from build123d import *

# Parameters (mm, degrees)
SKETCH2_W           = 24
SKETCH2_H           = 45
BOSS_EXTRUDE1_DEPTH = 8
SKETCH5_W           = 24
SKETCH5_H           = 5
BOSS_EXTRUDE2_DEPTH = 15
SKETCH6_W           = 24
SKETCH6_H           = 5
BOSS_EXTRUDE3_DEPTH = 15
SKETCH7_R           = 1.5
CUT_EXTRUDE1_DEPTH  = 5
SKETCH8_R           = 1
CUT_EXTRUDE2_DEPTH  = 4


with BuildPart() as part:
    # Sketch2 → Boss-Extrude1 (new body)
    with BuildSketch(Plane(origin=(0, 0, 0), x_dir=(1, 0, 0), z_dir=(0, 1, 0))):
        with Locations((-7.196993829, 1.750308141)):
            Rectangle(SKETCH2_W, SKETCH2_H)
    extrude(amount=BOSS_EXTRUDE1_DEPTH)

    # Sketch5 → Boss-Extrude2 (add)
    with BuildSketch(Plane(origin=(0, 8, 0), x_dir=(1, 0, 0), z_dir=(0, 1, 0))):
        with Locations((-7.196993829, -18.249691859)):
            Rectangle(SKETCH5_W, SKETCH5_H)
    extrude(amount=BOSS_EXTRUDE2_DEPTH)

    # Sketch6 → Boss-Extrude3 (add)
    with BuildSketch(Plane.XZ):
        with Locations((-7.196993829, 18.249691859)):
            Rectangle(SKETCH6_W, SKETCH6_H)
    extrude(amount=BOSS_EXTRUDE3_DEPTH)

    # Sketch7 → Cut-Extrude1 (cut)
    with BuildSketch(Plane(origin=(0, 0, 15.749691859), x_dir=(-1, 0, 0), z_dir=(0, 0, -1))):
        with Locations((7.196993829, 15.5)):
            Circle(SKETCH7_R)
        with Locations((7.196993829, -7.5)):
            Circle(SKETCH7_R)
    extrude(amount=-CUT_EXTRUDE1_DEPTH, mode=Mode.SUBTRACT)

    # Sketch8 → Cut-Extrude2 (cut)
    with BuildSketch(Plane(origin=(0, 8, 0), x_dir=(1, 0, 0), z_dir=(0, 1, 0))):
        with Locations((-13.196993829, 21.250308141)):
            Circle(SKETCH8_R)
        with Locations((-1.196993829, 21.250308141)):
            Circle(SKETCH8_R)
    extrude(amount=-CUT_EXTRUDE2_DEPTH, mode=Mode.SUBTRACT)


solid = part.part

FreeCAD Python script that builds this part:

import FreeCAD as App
import Part
import Sketcher

doc = App.newDocument("Part")
body = doc.addObject("PartDesign::Body", "Body")

sketch1 = body.newObject("Sketcher::SketchObject", "Sketch")
sketch1.AttachmentSupport = (doc.getObject("XZ_Plane"), [""])
sketch1.MapMode = "FlatFace"
sketch1.addGeometry([
    Part.LineSegment(App.Vector(-19.196994, -24.250308, 0), App.Vector(-19.196994, 20.749692, 0)),
    Part.LineSegment(App.Vector(-19.196994, 20.749692, 0), App.Vector(4.803006, 20.749692, 0)),
    Part.LineSegment(App.Vector(4.803006, 20.749692, 0), App.Vector(4.803006, -24.250308, 0)),
    Part.LineSegment(App.Vector(4.803006, -24.250308, 0), App.Vector(-19.196994, -24.250308, 0)),
], False)
sketch1.addConstraint([
    Sketcher.Constraint("Coincident", 0, 2, 1, 1),
    Sketcher.Constraint("Coincident", 1, 2, 2, 1),
    Sketcher.Constraint("Coincident", 2, 2, 3, 1),
    Sketcher.Constraint("Coincident", 3, 2, 0, 1),
    Sketcher.Constraint("Vertical", 0),
    Sketcher.Constraint("Horizontal", 1),
    Sketcher.Constraint("Vertical", 2),
    Sketcher.Constraint("Horizontal", 3),
    Sketcher.Constraint("DistanceX", 1, 1, 1, 2, 24.0),
    Sketcher.Constraint("DistanceY", 0, 1, 0, 2, 45.0),
    Sketcher.Constraint("DistanceY", -1, 1, 0, 2, 20.749692),
    Sketcher.Constraint("DistanceX", 0, 2, -1, 1, 19.196994),
])
pad1 = body.newObject("PartDesign::Pad", "Pad")
pad1.Profile = sketch1
pad1.Length = 8
pad1.Reversed = True

sketch2 = body.newObject("Sketcher::SketchObject", "Sketch001")
sketch2.AttachmentSupport = (doc.getObject("XZ_Plane"), [""])
sketch2.MapMode = "FlatFace"
sketch2.AttachmentOffset = App.Placement(App.Vector(0, 0, -8), App.Rotation())
sketch2.addGeometry([
    Part.LineSegment(App.Vector(-19.196994, 15.749692, 0), App.Vector(-19.196994, 20.749692, 0)),
    Part.LineSegment(App.Vector(-19.196994, 20.749692, 0), App.Vector(4.803006, 20.749692, 0)),
    Part.LineSegment(App.Vector(4.803006, 20.749692, 0), App.Vector(4.803006, 15.749692, 0)),
    Part.LineSegment(App.Vector(4.803006, 15.749692, 0), App.Vector(-19.196994, 15.749692, 0)),
], False)
sketch2.addConstraint([
    Sketcher.Constraint("Coincident", 0, 2, 1, 1),
    Sketcher.Constraint("Coincident", 1, 2, 2, 1),
    Sketcher.Constraint("Coincident", 2, 2, 3, 1),
    Sketcher.Constraint("Coincident", 3, 2, 0, 1),
    Sketcher.Constraint("Vertical", 0),
    Sketcher.Constraint("Horizontal", 1),
    Sketcher.Constraint("Vertical", 2),
    Sketcher.Constraint("Horizontal", 3),
    Sketcher.Constraint("DistanceX", 1, 1, 1, 2, 24.0),
    Sketcher.Constraint("DistanceY", 0, 1, 0, 2, 5.0),
    Sketcher.Constraint("DistanceY", -1, 1, 0, 2, 20.749692),
    Sketcher.Constraint("DistanceX", 0, 2, -1, 1, 19.196994),
])
pad2 = body.newObject("PartDesign::Pad", "Pad001")
pad2.Profile = sketch2
pad2.Length = 15
pad2.Reversed = True

sketch3 = body.newObject("Sketcher::SketchObject", "Sketch002")
sketch3.AttachmentSupport = (doc.getObject("XZ_Plane"), [""])
sketch3.MapMode = "FlatFace"
sketch3.addGeometry([
    Part.LineSegment(App.Vector(-19.196994, 20.749692, 0), App.Vector(-19.196994, 15.749692, 0)),
    Part.LineSegment(App.Vector(-19.196994, 15.749692, 0), App.Vector(4.803006, 15.749692, 0)),
    Part.LineSegment(App.Vector(4.803006, 15.749692, 0), App.Vector(4.803006, 20.749692, 0)),
    Part.LineSegment(App.Vector(4.803006, 20.749692, 0), App.Vector(-19.196994, 20.749692, 0)),
], False)
sketch3.addConstraint([
    Sketcher.Constraint("Coincident", 0, 2, 1, 1),
    Sketcher.Constraint("Coincident", 1, 2, 2, 1),
    Sketcher.Constraint("Coincident", 2, 2, 3, 1),
    Sketcher.Constraint("Coincident", 3, 2, 0, 1),
    Sketcher.Constraint("Vertical", 0),
    Sketcher.Constraint("Horizontal", 1),
    Sketcher.Constraint("Vertical", 2),
    Sketcher.Constraint("Horizontal", 3),
    Sketcher.Constraint("DistanceX", 1, 1, 1, 2, 24.0),
    Sketcher.Constraint("DistanceY", 0, 2, 0, 1, 5.0),
    Sketcher.Constraint("DistanceY", -1, 1, 0, 2, 15.749692),
    Sketcher.Constraint("DistanceX", 0, 2, -1, 1, 19.196994),
])
pad3 = body.newObject("PartDesign::Pad", "Pad002")
pad3.Profile = sketch3
pad3.Length = 15

sketch4 = body.newObject("Sketcher::SketchObject", "Sketch003")
sketch4.AttachmentSupport = (doc.getObject("XY_Plane"), [""])
sketch4.MapMode = "FlatFace"
sketch4.AttachmentOffset = App.Placement(App.Vector(0, 0, 15.749692), App.Rotation())
sketch4.addGeometry([
    Part.Circle(App.Vector(-7.196994, 15.5, 0), App.Vector(0, 0, 1), 1.5),
    Part.Circle(App.Vector(-7.196994, -7.5, 0), App.Vector(0, 0, 1), 1.5),
], False)
sketch4.addConstraint([
    Sketcher.Constraint("Equal", 0, 1),
    Sketcher.Constraint("Vertical", 0, 3, 1, 3),
    Sketcher.Constraint("Diameter", 0, 3.0),
    Sketcher.Constraint("DistanceY", 1, 3, 0, 3, 23.0),
    Sketcher.Constraint("DistanceY", -1, 1, 0, 3, 15.5),
    Sketcher.Constraint("DistanceX", 0, 3, -1, 1, 7.196994),
])
pocket1 = body.newObject("PartDesign::Pocket", "Pocket")
pocket1.Profile = sketch4
pocket1.Length = 5
pocket1.Reversed = True

sketch5 = body.newObject("Sketcher::SketchObject", "Sketch004")
sketch5.AttachmentSupport = (doc.getObject("XZ_Plane"), [""])
sketch5.MapMode = "FlatFace"
sketch5.AttachmentOffset = App.Placement(App.Vector(0, 0, -8), App.Rotation())
sketch5.addGeometry([
    Part.Circle(App.Vector(-13.196994, -21.250308, 0), App.Vector(0, 0, 1), 1),
    Part.Circle(App.Vector(-1.196994, -21.250308, 0), App.Vector(0, 0, 1), 1),
], False)
sketch5.addConstraint([
    Sketcher.Constraint("Equal", 0, 1),
    Sketcher.Constraint("Horizontal", 0, 3, 1, 3),
    Sketcher.Constraint("Diameter", 0, 2.0),
    Sketcher.Constraint("DistanceX", 0, 3, 1, 3, 12.0),
    Sketcher.Constraint("DistanceY", 0, 3, -1, 1, 21.250308),
    Sketcher.Constraint("DistanceX", 0, 3, -1, 1, 13.196994),
])
pocket2 = body.newObject("PartDesign::Pocket", "Pocket001")
pocket2.Profile = sketch5
pocket2.Length = 4
pocket2.Reversed = True

doc.recompute()
